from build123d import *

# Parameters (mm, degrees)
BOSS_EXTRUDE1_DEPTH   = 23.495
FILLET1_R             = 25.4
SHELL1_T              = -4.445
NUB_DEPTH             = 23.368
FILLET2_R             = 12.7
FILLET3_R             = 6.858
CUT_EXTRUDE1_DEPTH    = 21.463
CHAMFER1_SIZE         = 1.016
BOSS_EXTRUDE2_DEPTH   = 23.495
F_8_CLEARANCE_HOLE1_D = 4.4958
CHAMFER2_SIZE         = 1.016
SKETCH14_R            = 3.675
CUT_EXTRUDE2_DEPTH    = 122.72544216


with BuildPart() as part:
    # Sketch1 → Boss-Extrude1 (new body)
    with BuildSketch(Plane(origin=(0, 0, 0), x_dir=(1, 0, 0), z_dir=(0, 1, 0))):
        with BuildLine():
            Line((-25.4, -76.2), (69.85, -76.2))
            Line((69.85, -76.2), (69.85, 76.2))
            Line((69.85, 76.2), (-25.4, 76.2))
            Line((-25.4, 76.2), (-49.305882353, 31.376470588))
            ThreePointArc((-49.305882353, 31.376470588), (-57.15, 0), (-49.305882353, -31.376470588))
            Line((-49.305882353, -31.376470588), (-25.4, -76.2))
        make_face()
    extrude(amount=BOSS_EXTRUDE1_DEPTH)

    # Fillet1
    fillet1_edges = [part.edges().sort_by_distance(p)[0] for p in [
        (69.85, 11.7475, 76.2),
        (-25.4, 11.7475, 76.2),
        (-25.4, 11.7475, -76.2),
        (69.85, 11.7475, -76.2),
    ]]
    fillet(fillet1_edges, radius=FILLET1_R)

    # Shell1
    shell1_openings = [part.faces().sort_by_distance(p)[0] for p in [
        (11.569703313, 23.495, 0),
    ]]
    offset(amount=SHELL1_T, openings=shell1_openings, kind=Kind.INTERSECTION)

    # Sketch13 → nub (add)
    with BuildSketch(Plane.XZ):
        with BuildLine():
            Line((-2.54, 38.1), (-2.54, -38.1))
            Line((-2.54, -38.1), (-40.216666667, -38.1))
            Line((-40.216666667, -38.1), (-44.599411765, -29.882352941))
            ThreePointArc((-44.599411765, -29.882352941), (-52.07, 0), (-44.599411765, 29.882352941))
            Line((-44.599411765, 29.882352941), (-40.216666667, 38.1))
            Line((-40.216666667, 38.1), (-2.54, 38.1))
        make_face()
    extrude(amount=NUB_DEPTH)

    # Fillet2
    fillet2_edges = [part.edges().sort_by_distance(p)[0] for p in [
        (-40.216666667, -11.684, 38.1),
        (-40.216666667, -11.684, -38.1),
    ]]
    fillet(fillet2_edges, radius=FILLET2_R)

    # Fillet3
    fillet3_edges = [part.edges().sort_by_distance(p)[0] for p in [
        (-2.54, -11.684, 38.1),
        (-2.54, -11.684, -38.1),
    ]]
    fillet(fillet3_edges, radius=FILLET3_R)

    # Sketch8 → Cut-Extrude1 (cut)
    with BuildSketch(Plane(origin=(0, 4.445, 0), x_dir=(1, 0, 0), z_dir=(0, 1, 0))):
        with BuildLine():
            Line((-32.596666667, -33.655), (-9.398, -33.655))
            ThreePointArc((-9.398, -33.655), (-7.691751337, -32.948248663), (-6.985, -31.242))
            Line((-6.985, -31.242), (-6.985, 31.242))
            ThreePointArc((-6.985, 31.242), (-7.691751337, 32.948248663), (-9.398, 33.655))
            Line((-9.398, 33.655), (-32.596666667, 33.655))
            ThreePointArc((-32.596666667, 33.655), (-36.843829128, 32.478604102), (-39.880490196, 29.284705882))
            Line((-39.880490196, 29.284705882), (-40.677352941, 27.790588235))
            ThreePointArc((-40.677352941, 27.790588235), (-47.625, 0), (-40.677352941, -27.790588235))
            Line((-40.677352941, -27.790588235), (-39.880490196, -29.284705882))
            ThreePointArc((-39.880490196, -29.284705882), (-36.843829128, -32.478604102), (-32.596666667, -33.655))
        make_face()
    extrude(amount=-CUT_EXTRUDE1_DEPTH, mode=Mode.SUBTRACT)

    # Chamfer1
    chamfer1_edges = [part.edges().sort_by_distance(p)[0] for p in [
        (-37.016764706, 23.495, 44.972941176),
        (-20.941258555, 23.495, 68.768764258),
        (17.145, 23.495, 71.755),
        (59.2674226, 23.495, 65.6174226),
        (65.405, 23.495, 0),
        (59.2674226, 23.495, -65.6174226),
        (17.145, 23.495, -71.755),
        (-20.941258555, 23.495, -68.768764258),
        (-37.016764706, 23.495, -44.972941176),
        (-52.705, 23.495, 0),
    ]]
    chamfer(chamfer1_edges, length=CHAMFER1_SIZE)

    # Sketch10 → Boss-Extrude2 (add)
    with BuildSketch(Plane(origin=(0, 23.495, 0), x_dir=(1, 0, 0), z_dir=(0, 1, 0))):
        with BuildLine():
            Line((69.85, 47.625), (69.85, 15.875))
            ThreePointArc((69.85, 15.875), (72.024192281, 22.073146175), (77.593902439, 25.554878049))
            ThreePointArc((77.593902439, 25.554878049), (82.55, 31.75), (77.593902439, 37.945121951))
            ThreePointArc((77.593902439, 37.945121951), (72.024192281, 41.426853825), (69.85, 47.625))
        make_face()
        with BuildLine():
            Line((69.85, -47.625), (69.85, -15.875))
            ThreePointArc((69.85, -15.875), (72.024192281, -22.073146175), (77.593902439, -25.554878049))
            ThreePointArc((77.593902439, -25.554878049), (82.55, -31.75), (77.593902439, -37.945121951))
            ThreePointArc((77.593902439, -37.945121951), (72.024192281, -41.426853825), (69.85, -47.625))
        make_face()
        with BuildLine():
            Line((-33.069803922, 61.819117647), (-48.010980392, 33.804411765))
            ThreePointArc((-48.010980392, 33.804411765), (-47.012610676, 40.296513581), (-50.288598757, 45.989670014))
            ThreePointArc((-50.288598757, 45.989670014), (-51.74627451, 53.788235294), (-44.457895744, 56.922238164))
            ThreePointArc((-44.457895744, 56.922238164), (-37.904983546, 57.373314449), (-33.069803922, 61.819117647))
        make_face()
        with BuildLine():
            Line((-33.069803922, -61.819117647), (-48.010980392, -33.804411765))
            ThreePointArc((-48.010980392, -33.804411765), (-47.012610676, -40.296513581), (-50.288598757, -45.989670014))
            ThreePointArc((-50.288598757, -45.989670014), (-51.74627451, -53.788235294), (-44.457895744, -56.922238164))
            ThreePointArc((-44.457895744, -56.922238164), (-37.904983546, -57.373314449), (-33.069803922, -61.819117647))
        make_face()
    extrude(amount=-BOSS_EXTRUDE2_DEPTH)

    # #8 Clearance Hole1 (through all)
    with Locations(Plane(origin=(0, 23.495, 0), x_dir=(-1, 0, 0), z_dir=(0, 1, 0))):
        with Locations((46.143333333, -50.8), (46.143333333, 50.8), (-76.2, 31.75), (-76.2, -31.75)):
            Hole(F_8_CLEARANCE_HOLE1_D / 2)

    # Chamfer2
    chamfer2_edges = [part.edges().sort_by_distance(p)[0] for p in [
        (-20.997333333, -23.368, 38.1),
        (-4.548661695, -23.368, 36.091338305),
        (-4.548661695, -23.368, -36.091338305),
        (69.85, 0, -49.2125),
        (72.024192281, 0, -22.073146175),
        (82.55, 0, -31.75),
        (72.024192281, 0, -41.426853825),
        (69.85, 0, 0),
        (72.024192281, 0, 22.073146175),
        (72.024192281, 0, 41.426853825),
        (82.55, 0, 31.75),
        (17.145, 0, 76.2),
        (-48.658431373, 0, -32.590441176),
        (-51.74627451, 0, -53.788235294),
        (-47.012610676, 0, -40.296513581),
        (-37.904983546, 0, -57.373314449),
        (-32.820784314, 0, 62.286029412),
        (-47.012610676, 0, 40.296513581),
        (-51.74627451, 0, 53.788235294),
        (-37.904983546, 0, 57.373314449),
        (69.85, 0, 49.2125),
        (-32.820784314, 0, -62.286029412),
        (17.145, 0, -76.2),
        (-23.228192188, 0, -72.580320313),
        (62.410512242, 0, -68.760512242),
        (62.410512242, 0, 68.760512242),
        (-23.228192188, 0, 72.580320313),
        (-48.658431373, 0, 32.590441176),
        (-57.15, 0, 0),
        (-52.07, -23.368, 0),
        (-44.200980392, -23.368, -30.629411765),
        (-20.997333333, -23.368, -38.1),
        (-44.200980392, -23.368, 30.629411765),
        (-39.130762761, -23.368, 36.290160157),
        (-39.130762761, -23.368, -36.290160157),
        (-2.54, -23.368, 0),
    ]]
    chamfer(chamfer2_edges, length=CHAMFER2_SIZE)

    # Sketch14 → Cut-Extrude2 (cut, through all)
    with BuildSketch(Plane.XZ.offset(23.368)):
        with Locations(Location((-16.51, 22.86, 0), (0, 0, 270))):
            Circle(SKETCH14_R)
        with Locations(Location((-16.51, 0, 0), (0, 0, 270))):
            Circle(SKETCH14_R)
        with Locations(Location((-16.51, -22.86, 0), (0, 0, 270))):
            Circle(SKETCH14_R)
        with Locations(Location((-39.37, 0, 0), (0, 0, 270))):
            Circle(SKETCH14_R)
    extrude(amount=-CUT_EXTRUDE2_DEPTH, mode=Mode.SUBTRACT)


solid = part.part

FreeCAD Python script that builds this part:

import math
import FreeCAD as App
import Part
import Sketcher

V = App.Vector
Q = App.Units.Quantity


def edges_at(feature, points):
    """Names of the edges that pass closest to the given points."""
    edges = feature.Shape.Edges
    near = lambda p: min(range(len(edges)), key=lambda i: edges[i].distToShape(Part.Vertex(*p))[0])
    return sorted({f"Edge{near(p) + 1}" for p in points})


def faces_at(feature, points):
    """Names of the faces that lie closest to the given points."""
    faces = feature.Shape.Faces
    near = lambda p: min(range(len(faces)), key=lambda i: faces[i].distToShape(Part.Vertex(*p))[0])
    return sorted({f"Face{near(p) + 1}" for p in points})

doc = App.newDocument("Part")
body = doc.addObject("PartDesign::Body", "Body")

# Sketch on XZ plane
sketch1 = body.newObject("Sketcher::SketchObject", "Sketch")
sketch1.AttachmentSupport = (doc.getObject("XZ_Plane"), [""])
sketch1.MapMode = "FlatFace"
sketch1.addGeometry([
    Part.LineSegment(V(-25, 76, 0), V(70, 76, 0)),  # 0
    Part.LineSegment(V(70, 76, 0), V(70, -76, 0)),  # 1
    Part.LineSegment(V(70, -76, 0), V(-25, -76, 0)),  # 2
    Part.LineSegment(V(-25, -76, 0), V(-49, -31, 0)),  # 3
    Part.ArcOfCircle(Part.Circle(V(10, 0, 0), V(0, 0, 1), 67), math.radians(152), math.radians(208)),  # 4
    Part.LineSegment(V(-49, 31, 0), V(-25, 76, 0)),  # 5
], False)
sketch1.addConstraint([
    Sketcher.Constraint("Coincident", 0, 2, 1, 1),
    Sketcher.Constraint("Coincident", 1, 2, 2, 1),
    Sketcher.Constraint("Coincident", 2, 2, 3, 1),
    Sketcher.Constraint("Tangent", 3, 2, 4, 2),
    Sketcher.Constraint("Tangent", 4, 1, 5, 1),
    Sketcher.Constraint("Coincident", 5, 2, 0, 1),
    Sketcher.Constraint("Horizontal", 0),
    Sketcher.Constraint("Vertical", 1),
    Sketcher.Constraint("Horizontal", 2),
    Sketcher.Constraint("Symmetric", 3, 2, 4, 1, -1),
    Sketcher.Constraint("Vertical", 2, 2, 5, 2),
    Sketcher.Constraint("DistanceY", 1, 2, 1, 1, Q("6 in")),
    Sketcher.Constraint("Distance", 3, Q("2 in")),
    Sketcher.Constraint("DistanceX", 2, 2, -1, 1, Q("1 in")),
    Sketcher.Constraint("Radius", 4, Q("2.625 in")),
    Sketcher.Constraint("DistanceX", 0, 1, 0, 2, Q("3.75 in")),
])
pad1 = body.newObject("PartDesign::Pad", "Pad")
pad1.Profile = sketch1
pad1.Length = Q("0.925 in")
pad1.Reversed = True
doc.recompute()

fillet = body.newObject("PartDesign::Fillet", "Fillet")
fillet.Base = (pad1, edges_at(pad1, [
    (69.85, 11.748, 76.2),
    (-25.4, 11.748, 76.2),
    (-25.4, 11.748, -76.2),
    (69.85, 11.748, -76.2),
]))
fillet.Radius = Q("1 in")
doc.recompute()

thickness = body.newObject("PartDesign::Thickness", "Thickness")
thickness.Base = (fillet, faces_at(fillet, [(6.35, 23.495, 0)]))
thickness.Value = Q("0.175 in")
thickness.Reversed = True
thickness.Join = "Intersection"

# Sketch on XZ plane
sketch2 = body.newObject("Sketcher::SketchObject", "Sketch001")
sketch2.AttachmentSupport = (doc.getObject("XZ_Plane"), [""])
sketch2.MapMode = "FlatFace"
sketch2.addGeometry([
    Part.LineSegment(V(-3, -38, 0), V(-3, 38, 0)),  # 0
    Part.LineSegment(V(-3, 38, 0), V(-40, 38, 0)),  # 1
    Part.LineSegment(V(-40, 38, 0), V(-45, 30, 0)),  # 2
    Part.ArcOfCircle(Part.Circle(V(11, 0, 0), V(0, 0, 1), 64), math.radians(152), math.radians(208)),  # 3
    Part.LineSegment(V(-45, -30, 0), V(-40, -38, 0)),  # 4
    Part.LineSegment(V(-40, -38, 0), V(-3, -38, 0)),  # 5
], False)
sketch2.addConstraint([
    Sketcher.Constraint("Coincident", 0, 2, 1, 1),
    Sketcher.Constraint("Coincident", 1, 2, 2, 1),
    Sketcher.Constraint("Tangent", 2, 2, 3, 1),
    Sketcher.Constraint("Tangent", 3, 2, 4, 1),
    Sketcher.Constraint("Coincident", 4, 2, 5, 1),
    Sketcher.Constraint("Coincident", 5, 2, 0, 1),
    Sketcher.Constraint("Vertical", 0),
    Sketcher.Constraint("Horizontal", 1),
    Sketcher.Constraint("Horizontal", 5),
    Sketcher.Constraint("Symmetric", 2, 2, 3, 2, -1),
    Sketcher.Constraint("Vertical", 1, 2, 4, 2),
    Sketcher.Constraint("Radius", 3, Q("2.5 in")),
    Sketcher.Constraint("DistanceY", 0, 1, 0, 2, Q("3 in")),
    Sketcher.Constraint("DistanceX", 0, 2, -1, 1, Q("0.1 in")),
    Sketcher.Constraint("DistanceX", -1, 1, 3, 3, Q("0.45 in")),
    Sketcher.Constraint("DistanceX", 1, 2, 1, 1, 37.676667),
])
pad2 = body.newObject("PartDesign::Pad", "Pad001")
pad2.Profile = sketch2
pad2.Length = Q("0.92 in")
doc.recompute()

fillet2 = body.newObject("PartDesign::Fillet", "Fillet001")
fillet2.Base = (pad2, edges_at(pad2, [(-40.217, -11.684, 38.1), (-40.217, -11.684, -38.1)]))
fillet2.Radius = Q("0.5 in")
doc.recompute()

fillet3 = body.newObject("PartDesign::Fillet", "Fillet002")
fillet3.Base = (fillet2, edges_at(fillet2, [(-2.54, -11.684, 38.1), (-2.54, -11.684, -38.1)]))
fillet3.Radius = Q("0.27 in")

# Sketch on XZ plane
sketch3 = body.newObject("Sketcher::SketchObject", "Sketch002")
sketch3.AttachmentSupport = (doc.getObject("XZ_Plane"), [""])
sketch3.MapMode = "FlatFace"
sketch3.AttachmentOffset = App.Placement(V(0, 0, -0.175 * 25.4), App.Rotation())
sketch3.addGeometry([
    Part.LineSegment(V(-32.6, 33.7, 0), V(-9.4, 33.7, 0)),  # 0
    Part.ArcOfCircle(Part.Circle(V(-9.4, 31.2, 0), V(0, 0, 1), 2.4), math.radians(0), math.radians(90)),  # 1
    Part.LineSegment(V(-7, 31.2, 0), V(-7, -31.2, 0)),  # 2
    Part.ArcOfCircle(Part.Circle(V(-9.4, -31.2, 0), V(0, 0, 1), 2.4), math.radians(-90), math.radians(0)),  # 3
    Part.LineSegment(V(-9.4, -33.7, 0), V(-32.6, -33.7, 0)),  # 4
    Part.ArcOfCircle(Part.Circle(V(-32.6, -25.4, 0), V(0, 0, 1), 8.3), math.radians(-152), math.radians(-90)),  # 5
    Part.LineSegment(V(-39.9, -29.3, 0), V(-40.7, -27.8, 0)),  # 6
    Part.ArcOfCircle(Part.Circle(V(11.4, 0, 0), V(0, 0, 1), 59.1), math.radians(152), math.radians(208)),  # 7
    Part.LineSegment(V(-40.7, 27.8, 0), V(-39.9, 29.3, 0)),  # 8
    Part.ArcOfCircle(Part.Circle(V(-32.6, 25.4, 0), V(0, 0, 1), 8.3), math.radians(90), math.radians(152)),  # 9
], False)
sketch3.addConstraint([
    Sketcher.Constraint("Tangent", 0, 2, 1, 2),
    Sketcher.Constraint("Tangent", 1, 1, 2, 1),
    Sketcher.Constraint("Tangent", 2, 2, 3, 2),
    Sketcher.Constraint("Tangent", 3, 1, 4, 1),
    Sketcher.Constraint("Tangent", 4, 2, 5, 2),
    Sketcher.Constraint("Tangent", 5, 1, 6, 1),
    Sketcher.Constraint("Tangent", 6, 2, 7, 2),
    Sketcher.Constraint("Tangent", 7, 1, 8, 1),
    Sketcher.Constraint("Tangent", 8, 2, 9, 2),
    Sketcher.Constraint("Tangent", 9, 1, 0, 1),
    Sketcher.Constraint("Horizontal", 0),
    Sketcher.Constraint("Vertical", 2),
    Sketcher.Constraint("Horizontal", 4),
    Sketcher.Constraint("Equal", 1, 3),
    Sketcher.Constraint("Equal", 5, 9),
    Sketcher.Constraint("Symmetric", 5, 3, 9, 3, -1),
    Sketcher.Constraint("PointOnObject", 7, 3, -1),
    Sketcher.Constraint("DistanceY", 5, 3, -1, 1, Q("1 in")),
    Sketcher.Constraint("Radius", 1, Q("0.095 in")),
    Sketcher.Constraint("Radius", 5, Q("0.325 in")),
    Sketcher.Constraint("Radius", 7, Q("2.325 in")),
    Sketcher.Constraint("DistanceX", 1, 3, -1, 1, Q("0.37 in")),
    Sketcher.Constraint("DistanceX", -1, 1, 7, 3, Q("0.45 in")),
    Sketcher.Constraint("DistanceX", 0, 1, 0, 2, 23.198667),
])
pocket1 = body.newObject("PartDesign::Pocket", "Pocket")
pocket1.Profile = sketch3
pocket1.Length = Q("0.845 in")
pocket1.Reversed = True
doc.recompute()

chamfer = body.newObject("PartDesign::Chamfer", "Chamfer")
chamfer.Base = (pocket1, edges_at(pocket1, [
    (-37.017, 23.495, 44.973),
    (-20.941, 23.495, 68.769),
    (17.145, 23.495, 71.755),
    (59.267, 23.495, 65.617),
    (65.405, 23.495, 0),
    (59.267, 23.495, -65.617),
    (17.145, 23.495, -71.755),
    (-20.941, 23.495, -68.769),
    (-37.017, 23.495, -44.973),
    (-52.705, 23.495, 0),
]))
chamfer.Size = Q("0.04 in")

# Sketch on XZ plane
sketch4 = body.newObject("Sketcher::SketchObject", "Sketch003")
sketch4.AttachmentSupport = (doc.getObject("XZ_Plane"), [""])
sketch4.MapMode = "FlatFace"
sketch4.AttachmentOffset = App.Placement(V(0, 0, -0.925 * 25.4), App.Rotation())
sketch4.addGeometry([
    Part.LineSegment(V(70, -48, 0), V(70, -16, 0)),  # 0
    Part.ArcOfCircle(Part.Circle(V(80, -16, 0), V(0, 0, 1), 10), math.radians(180), math.radians(257)),  # 1
    Part.ArcOfCircle(Part.Circle(V(76, -32, 0), V(0, 0, 1), 6), math.radians(-77), math.radians(77)),  # 2
    Part.ArcOfCircle(Part.Circle(V(80, -48, 0), V(0, 0, 1), 10), math.radians(103), math.radians(180)),  # 3
    Part.LineSegment(V(70, 16, 0), V(70, 48, 0)),  # 4
    Part.ArcOfCircle(Part.Circle(V(80, 48, 0), V(0, 0, 1), 10), math.radians(180), math.radians(257)),  # 5
    Part.ArcOfCircle(Part.Circle(V(76, 32, 0), V(0, 0, 1), 6), math.radians(-77), math.radians(77)),  # 6
    Part.ArcOfCircle(Part.Circle(V(80, 16, 0), V(0, 0, 1), 10), math.radians(103), math.radians(180)),  # 7
    Part.LineSegment(V(-48, -34, 0), V(-33, -62, 0)),  # 8
    Part.ArcOfCircle(Part.Circle(V(-42, -66, 0), V(0, 0, 1), 10), math.radians(28), math.radians(105)),  # 9
    Part.ArcOfCircle(Part.Circle(V(-46, -51, 0), V(0, 0, 1), 6), math.radians(131), math.radians(285)),  # 10
    Part.ArcOfCircle(Part.Circle(V(-57, -38, 0), V(0, 0, 1), 10), math.radians(-49), math.radians(28)),  # 11
    Part.LineSegment(V(-33, 62, 0), V(-48, 34, 0)),  # 12
    Part.ArcOfCircle(Part.Circle(V(-57, 38, 0), V(0, 0, 1), 10), math.radians(-28), math.radians(49)),  # 13
    Part.ArcOfCircle(Part.Circle(V(-46, 51, 0), V(0, 0, 1), 6), math.radians(75), math.radians(229)),  # 14
    Part.ArcOfCircle(Part.Circle(V(-42, 66, 0), V(0, 0, 1), 10), math.radians(-105), math.radians(-28)),  # 15
], False)
sketch4.addConstraint([
    Sketcher.Constraint("Tangent", 0, 2, 1, 1),
    Sketcher.Constraint("Tangent", 1, 2, 2, 2),
    Sketcher.Constraint("Tangent", 2, 1, 3, 1),
    Sketcher.Constraint("Tangent", 3, 2, 0, 1),
    Sketcher.Constraint("Tangent", 4, 2, 5, 1),
    Sketcher.Constraint("Tangent", 5, 2, 6, 2),
    Sketcher.Constraint("Tangent", 6, 1, 7, 1),
    Sketcher.Constraint("Tangent", 7, 2, 4, 1),
    Sketcher.Constraint("Tangent", 8, 2, 9, 1),
    Sketcher.Constraint("Tangent", 9, 2, 10, 2),
    Sketcher.Constraint("Tangent", 10, 1, 11, 1),
    Sketcher.Constraint("Tangent", 11, 2, 8, 1),
    Sketcher.Constraint("Tangent", 12, 2, 13, 1),
    Sketcher.Constraint("Tangent", 13, 2, 14, 2),
    Sketcher.Constraint("Tangent", 14, 1, 15, 1),
    Sketcher.Constraint("Tangent", 15, 2, 12, 1),
    Sketcher.Constraint("Vertical", 0),
    Sketcher.Constraint("Vertical", 4),
    Sketcher.Constraint("Equal", 1, 3),
    Sketcher.Constraint("Equal", 3, 5),
    Sketcher.Constraint("Equal", 2, 6),
    Sketcher.Constraint("Equal", 5, 7),
    Sketcher.Constraint("Equal", 7, 9),
    Sketcher.Constraint("Equal", 6, 10),
    Sketcher.Constraint("Equal", 9, 11),
    Sketcher.Constraint("Equal", 11, 13),
    Sketcher.Constraint("Equal", 10, 14),
    Sketcher.Constraint("Equal", 13, 15),
    Sketcher.Constraint("Symmetric", 3, 3, 5, 3, -1),
    Sketcher.Constraint("Symmetric", 11, 3, 13, 3, -1),
    Sketcher.Constraint("Symmetric", 9, 3, 15, 3, -1),
    Sketcher.Constraint("Vertical", 2, 3, 6, 3),
    Sketcher.Constraint("Radius", 2, Q("0.25 in")),
    Sketcher.Constraint("DistanceX", -1, 1, 2, 3, Q("3 in")),
    Sketcher.Constraint("DistanceY", 10, 3, -1, 1, Q("2 in")),
    Sketcher.Constraint("Radius", 1, Q("0.390625 in")),
    Sketcher.Constraint("DistanceY", 0, 1, 0, 2, Q("1.25 in")),
    Sketcher.Constraint("DistanceY", 1, 3, 5, 3, Q("2.5 in")),
    Sketcher.Constraint("Distance", 8, Q("1.25 in")),
    Sketcher.Constraint("DistanceX", 9, 3, -1, 1, 41.8244),
    Sketcher.Constraint("DistanceX", 10, 1, -1, 1, 50.288599),
])
pad3 = body.newObject("PartDesign::Pad", "Pad002")
pad3.Profile = sketch4
pad3.Length = Q("0.925 in")

# Sketch on XZ plane
sketch5 = body.newObject("Sketcher::SketchObject", "Sketch004")
sketch5.AttachmentSupport = (doc.getObject("XZ_Plane"), [""])
sketch5.MapMode = "FlatFace"
sketch5.AttachmentOffset = App.Placement(V(0, 0, -0.925 * 25.4), App.Rotation())
sketch5.addGeometry([
    Part.Circle(V(-46.1, -50.8, 0), V(0, 0, 1), 2.2),
    Part.Circle(V(-46.1, 50.8, 0), V(0, 0, 1), 2.2),
    Part.Circle(V(76.2, 31.8, 0), V(0, 0, 1), 2.2),
    Part.Circle(V(76.2, -31.8, 0), V(0, 0, 1), 2.2),
], False)
sketch5.addConstraint([
    Sketcher.Constraint("Equal", 0, 1),
    Sketcher.Constraint("Equal", 1, 2),
    Sketcher.Constraint("Equal", 2, 3),
    Sketcher.Constraint("Symmetric", 0, 3, 1, 3, -1),
    Sketcher.Constraint("Symmetric", 2, 3, 3, 3, -1),
    Sketcher.Constraint("Diameter", 0, Q("0.177 in")),
    Sketcher.Constraint("DistanceY", 0, 3, -1, 1, Q("2 in")),
    Sketcher.Constraint("DistanceX", -1, 1, 2, 3, Q("3 in")),
    Sketcher.Constraint("DistanceY", 3, 3, 2, 3, Q("2.5 in")),
    Sketcher.Constraint("DistanceX", 0, 3, -1, 1, 46.143333),
])
doc.recompute()
hole = body.newObject("PartDesign::Hole", "Hole")
hole.Profile = sketch5
hole.ThreadType = "None"
hole.Diameter = Q("0.177 in")
hole.DepthType = "ThroughAll"
hole.Reversed = True
doc.recompute()

chamfer2 = body.newObject("PartDesign::Chamfer", "Chamfer001")
chamfer2.Base = (hole, edges_at(hole, [
    (-20.997, -23.368, 38.1),
    (-4.549, -23.368, 36.091),
    (-4.549, -23.368, -36.091),
    (69.85, 0, -49.212),
    (72.024, 0, -22.073),
    (82.55, 0, -31.75),
    (72.024, 0, -41.427),
    (69.85, 0, 0),
    (72.024, 0, 22.073),
    (72.024, 0, 41.427),
    (82.55, 0, 31.75),
    (17.145, 0, 76.2),
    (-48.658, 0, -32.59),
    (-51.746, 0, -53.788),
    (-47.013, 0, -40.297),
    (-37.905, 0, -57.373),
    (-32.821, 0, 62.286),
    (-47.013, 0, 40.297),
    (-51.746, 0, 53.788),
    (-37.905, 0, 57.373),
    (69.85, 0, 49.212),
    (-32.821, 0, -62.286),
    (17.145, 0, -76.2),
    (-23.228, 0, -72.58),
    (62.411, 0, -68.761),
    (62.411, 0, 68.761),
    (-23.228, 0, 72.58),
    (-48.658, 0, 32.59),
    (-57.15, 0, 0),
    (-52.07, -23.368, 0),
    (-44.201, -23.368, -30.629),
    (-20.997, -23.368, -38.1),
    (-44.201, -23.368, 30.629),
    (-39.131, -23.368, 36.29),
    (-39.131, -23.368, -36.29),
    (-2.54, -23.368, 0),
]))
chamfer2.Size = Q("0.04 in")

# Sketch on XZ plane
sketch6 = body.newObject("Sketcher::SketchObject", "Sketch005")
sketch6.AttachmentSupport = (doc.getObject("XZ_Plane"), [""])
sketch6.MapMode = "FlatFace"
sketch6.AttachmentOffset = App.Placement(V(0, 0, 0.92 * 25.4), App.Rotation())
sketch6.addGeometry([
    Part.Circle(V(-16.5, 22.9, 0), V(0, 0, 1), 3.7),
    Part.Circle(V(-16.5, 0, 0), V(0, 0, 1), 3.7),
    Part.Circle(V(-16.5, -22.9, 0), V(0, 0, 1), 3.7),
    Part.Circle(V(-39.4, 0, 0), V(0, 0, 1), 3.7),
], False)
sketch6.addConstraint([
    Sketcher.Constraint("Equal", 0, 1),
    Sketcher.Constraint("Equal", 1, 2),
    Sketcher.Constraint("Equal", 2, 3),
    Sketcher.Constraint("Symmetric", 0, 3, 2, 3, -1),
    Sketcher.Constraint("PointOnObject", 1, 3, -1),
    Sketcher.Constraint("PointOnObject", 3, 3, -1),
    Sketcher.Constraint("Vertical", 0, 3, 1, 3),
    Sketcher.Constraint("DistanceY", -1, 1, 0, 3, Q("0.9 in")),
    Sketcher.Constraint("DistanceX", 3, 3, 1, 3, Q("0.9 in")),
    Sketcher.Constraint("Diameter", 0, 7.35),
    Sketcher.Constraint("DistanceX", 0, 3, -1, 1, Q("0.65 in")),
])
pocket2 = body.newObject("PartDesign::Pocket", "Pocket001")
pocket2.Profile = sketch6
pocket2.Type = "ThroughAll"

doc.recompute()
